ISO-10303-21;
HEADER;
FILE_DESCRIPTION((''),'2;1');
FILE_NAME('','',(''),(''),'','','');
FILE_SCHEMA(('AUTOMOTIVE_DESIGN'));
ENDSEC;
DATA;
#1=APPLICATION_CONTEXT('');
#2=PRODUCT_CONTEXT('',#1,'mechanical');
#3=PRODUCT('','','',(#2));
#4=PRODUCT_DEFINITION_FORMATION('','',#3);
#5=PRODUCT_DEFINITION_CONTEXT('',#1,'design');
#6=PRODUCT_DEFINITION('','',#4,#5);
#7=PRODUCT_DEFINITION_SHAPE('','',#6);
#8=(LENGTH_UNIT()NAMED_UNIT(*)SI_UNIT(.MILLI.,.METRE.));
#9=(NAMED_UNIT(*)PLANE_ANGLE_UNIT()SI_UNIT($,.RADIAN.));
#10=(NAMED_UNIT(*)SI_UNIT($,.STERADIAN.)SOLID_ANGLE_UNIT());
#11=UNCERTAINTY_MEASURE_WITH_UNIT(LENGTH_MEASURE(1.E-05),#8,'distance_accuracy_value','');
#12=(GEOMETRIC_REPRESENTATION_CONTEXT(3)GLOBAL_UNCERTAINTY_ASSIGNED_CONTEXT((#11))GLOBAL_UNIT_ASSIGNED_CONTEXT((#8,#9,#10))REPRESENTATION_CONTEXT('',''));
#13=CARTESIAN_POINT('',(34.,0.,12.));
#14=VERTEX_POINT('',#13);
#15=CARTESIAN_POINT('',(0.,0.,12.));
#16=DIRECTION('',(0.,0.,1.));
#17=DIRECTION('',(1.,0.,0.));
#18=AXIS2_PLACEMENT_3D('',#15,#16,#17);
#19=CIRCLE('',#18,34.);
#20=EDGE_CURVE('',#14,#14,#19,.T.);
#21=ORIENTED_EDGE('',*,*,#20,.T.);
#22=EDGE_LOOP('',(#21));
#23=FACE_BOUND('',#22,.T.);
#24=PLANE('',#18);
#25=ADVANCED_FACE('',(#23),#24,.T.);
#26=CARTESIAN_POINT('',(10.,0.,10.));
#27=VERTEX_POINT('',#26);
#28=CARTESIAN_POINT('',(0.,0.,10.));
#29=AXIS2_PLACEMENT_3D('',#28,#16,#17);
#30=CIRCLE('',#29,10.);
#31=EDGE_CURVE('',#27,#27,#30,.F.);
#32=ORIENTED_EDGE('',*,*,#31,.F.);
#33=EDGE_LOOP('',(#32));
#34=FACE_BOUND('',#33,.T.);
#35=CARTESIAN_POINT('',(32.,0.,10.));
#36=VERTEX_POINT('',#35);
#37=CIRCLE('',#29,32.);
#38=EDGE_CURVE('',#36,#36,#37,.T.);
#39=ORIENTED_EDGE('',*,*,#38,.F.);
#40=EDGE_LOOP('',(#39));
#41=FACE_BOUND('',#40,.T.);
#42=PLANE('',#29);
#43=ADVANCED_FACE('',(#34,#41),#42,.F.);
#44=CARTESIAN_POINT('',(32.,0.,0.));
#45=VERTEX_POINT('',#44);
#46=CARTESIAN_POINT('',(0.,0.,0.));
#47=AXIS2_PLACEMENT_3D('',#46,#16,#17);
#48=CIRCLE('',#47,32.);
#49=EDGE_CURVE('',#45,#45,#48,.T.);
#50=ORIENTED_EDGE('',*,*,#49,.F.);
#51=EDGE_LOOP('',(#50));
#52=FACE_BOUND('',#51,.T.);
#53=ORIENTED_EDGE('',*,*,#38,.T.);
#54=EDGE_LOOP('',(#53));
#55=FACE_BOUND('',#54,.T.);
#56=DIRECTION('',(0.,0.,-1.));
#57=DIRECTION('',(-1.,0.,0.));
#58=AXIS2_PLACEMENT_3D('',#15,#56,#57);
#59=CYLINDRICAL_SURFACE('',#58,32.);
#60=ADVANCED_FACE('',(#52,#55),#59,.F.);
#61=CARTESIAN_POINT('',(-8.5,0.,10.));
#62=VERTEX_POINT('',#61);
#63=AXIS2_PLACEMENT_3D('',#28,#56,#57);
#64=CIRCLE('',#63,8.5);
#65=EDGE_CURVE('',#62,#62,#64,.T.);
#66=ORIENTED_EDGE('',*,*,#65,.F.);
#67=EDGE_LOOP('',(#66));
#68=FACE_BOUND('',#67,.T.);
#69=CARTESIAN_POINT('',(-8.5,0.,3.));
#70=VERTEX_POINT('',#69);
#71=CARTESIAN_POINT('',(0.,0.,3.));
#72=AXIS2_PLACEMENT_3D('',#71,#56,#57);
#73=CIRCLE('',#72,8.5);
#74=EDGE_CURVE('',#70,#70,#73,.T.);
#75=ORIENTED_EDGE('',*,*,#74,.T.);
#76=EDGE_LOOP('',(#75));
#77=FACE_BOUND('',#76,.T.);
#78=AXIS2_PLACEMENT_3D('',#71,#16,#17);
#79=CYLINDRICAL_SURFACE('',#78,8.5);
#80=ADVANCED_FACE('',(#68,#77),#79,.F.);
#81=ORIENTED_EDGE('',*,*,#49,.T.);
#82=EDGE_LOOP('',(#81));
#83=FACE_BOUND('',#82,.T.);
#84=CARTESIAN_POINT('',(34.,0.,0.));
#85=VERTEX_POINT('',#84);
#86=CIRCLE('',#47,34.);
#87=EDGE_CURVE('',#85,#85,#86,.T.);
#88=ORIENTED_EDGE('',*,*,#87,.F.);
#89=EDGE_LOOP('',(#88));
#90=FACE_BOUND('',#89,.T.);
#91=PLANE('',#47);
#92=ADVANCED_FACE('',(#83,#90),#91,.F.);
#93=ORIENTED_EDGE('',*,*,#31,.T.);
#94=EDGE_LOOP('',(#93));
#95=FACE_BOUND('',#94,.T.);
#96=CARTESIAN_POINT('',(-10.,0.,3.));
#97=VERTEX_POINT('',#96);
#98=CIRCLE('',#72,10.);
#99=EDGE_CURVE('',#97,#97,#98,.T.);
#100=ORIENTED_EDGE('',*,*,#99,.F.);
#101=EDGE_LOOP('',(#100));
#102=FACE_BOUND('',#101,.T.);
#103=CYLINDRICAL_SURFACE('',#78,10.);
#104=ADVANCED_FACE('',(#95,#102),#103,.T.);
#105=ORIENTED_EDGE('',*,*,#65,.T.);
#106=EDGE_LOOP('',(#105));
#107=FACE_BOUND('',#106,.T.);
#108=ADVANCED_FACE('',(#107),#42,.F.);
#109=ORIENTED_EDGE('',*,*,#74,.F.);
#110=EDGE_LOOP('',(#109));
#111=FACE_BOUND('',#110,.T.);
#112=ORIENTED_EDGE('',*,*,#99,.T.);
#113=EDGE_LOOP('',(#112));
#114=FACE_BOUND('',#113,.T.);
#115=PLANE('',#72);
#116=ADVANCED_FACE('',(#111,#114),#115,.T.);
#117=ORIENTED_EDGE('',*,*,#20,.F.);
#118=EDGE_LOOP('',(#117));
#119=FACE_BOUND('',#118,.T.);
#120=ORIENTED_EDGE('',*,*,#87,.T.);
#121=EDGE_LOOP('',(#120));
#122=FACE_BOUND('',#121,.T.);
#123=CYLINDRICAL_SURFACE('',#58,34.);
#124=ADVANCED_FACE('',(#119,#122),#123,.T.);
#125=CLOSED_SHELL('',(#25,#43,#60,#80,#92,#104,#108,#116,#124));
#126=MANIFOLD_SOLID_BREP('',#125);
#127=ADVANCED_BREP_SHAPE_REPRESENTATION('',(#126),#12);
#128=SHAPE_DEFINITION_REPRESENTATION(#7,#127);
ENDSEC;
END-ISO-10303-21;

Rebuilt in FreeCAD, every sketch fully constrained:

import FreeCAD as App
import Part
import Sketcher
Q = App.Units.Quantity

doc = App.newDocument("Part")
body = doc.addObject("PartDesign::Body", "Body")

# Sketch on XY plane
sketch1 = body.newObject("Sketcher::SketchObject", "Sketch")
sketch1.AttachmentSupport = (doc.getObject("XY_Plane"), [""])
sketch1.MapMode = "FlatFace"
sketch1.addGeometry([
    Part.Circle(App.Vector(0, 0, 0), App.Vector(0, 0, 1), 34),
    Part.Circle(App.Vector(0, 0, 0), App.Vector(0, 0, 1), 32),
], False)
sketch1.addConstraint([
    Sketcher.Constraint("Coincident", 0, 3, -1, 1),
    Sketcher.Constraint("Coincident", 1, 3, -1, 1),
    Sketcher.Constraint("Diameter", 0, Q("68 mm")),
    Sketcher.Constraint("Diameter", 1, Q("64 mm")),
])
pad1 = body.newObject("PartDesign::Pad", "Pad")
pad1.Profile = sketch1
pad1.Length = 12

# Sketch on XY plane
sketch2 = body.newObject("Sketcher::SketchObject", "Sketch001")
sketch2.AttachmentSupport = (doc.getObject("XY_Plane"), [""])
sketch2.MapMode = "FlatFace"
sketch2.AttachmentOffset = App.Placement(App.Vector(0, 0, 10), App.Rotation())
sketch2.addGeometry(Part.Circle(App.Vector(0, 0, 0), App.Vector(0, 0, 1), 34), False)
sketch2.addConstraint([
    Sketcher.Constraint("Coincident", 0, 3, -1, 1),
    Sketcher.Constraint("Diameter", 0, Q("68 mm")),
])
pad2 = body.newObject("PartDesign::Pad", "Pad001")
pad2.Profile = sketch2
pad2.Length = 2

# Sketch on XY plane
sketch3 = body.newObject("Sketcher::SketchObject", "Sketch002")
sketch3.AttachmentSupport = (doc.getObject("XY_Plane"), [""])
sketch3.MapMode = "FlatFace"
sketch3.AttachmentOffset = App.Placement(App.Vector(0, 0, 10), App.Rotation())
sketch3.addGeometry([
    Part.Circle(App.Vector(0, 0, 0), App.Vector(0, 0, 1), 10),
    Part.Circle(App.Vector(0, 0, 0), App.Vector(0, 0, 1), 8),
], False)
sketch3.addConstraint([
    Sketcher.Constraint("Coincident", 0, 3, -1, 1),
    Sketcher.Constraint("Coincident", 1, 3, -1, 1),
    Sketcher.Constraint("Diameter", 0, Q("20 mm")),
    Sketcher.Constraint("Diameter", 1, Q("17 mm")),
])
pad3 = body.newObject("PartDesign::Pad", "Pad002")
pad3.Profile = sketch3
pad3.Length = 7
pad3.Reversed = True

doc.recompute()
